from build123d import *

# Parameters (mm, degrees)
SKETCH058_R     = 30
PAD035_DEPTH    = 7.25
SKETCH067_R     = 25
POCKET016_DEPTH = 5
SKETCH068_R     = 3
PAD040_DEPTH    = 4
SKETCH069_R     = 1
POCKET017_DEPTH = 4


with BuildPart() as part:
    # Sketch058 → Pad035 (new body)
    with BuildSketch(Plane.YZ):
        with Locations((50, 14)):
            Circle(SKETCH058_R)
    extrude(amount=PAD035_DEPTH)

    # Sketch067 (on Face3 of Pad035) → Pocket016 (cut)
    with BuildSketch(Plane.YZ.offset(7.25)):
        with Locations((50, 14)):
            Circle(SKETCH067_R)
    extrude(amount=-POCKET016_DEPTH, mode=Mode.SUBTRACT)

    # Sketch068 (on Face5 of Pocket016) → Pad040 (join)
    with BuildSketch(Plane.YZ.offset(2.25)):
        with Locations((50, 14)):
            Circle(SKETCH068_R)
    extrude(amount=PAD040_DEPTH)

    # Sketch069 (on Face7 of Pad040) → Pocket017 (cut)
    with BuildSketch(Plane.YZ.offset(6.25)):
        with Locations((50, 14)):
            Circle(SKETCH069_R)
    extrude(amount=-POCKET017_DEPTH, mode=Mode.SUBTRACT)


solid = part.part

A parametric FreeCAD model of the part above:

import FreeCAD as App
import Part
import Sketcher
from FreeCAD import Vector
Q = App.Units.Quantity

doc = App.newDocument("Part")
params = doc.addObject("Spreadsheet::Sheet", "Params")
for row, (alias, value) in enumerate([
    ("sketch1_diameter", "60 mm"),
    ("pad1_length", "7.25 mm"),
    ("sketch2_diameter", "50 mm"),
    ("pocket1_length", "5 mm"),
    ("sketch3_diameter", "6 mm"),
    ("pad2_length", "4 mm"),
    ("sketch4_diameter", "2 mm"),
    ("pocket2_length", "4 mm"),
], start=1):
    params.set(f"A{row}", alias)
    params.set(f"B{row}", "=" + value)
    params.setAlias(f"B{row}", alias)

body = doc.addObject("PartDesign::Body", "Body")

sketch1 = body.newObject("Sketcher::SketchObject", "Sketch")
sketch1.AttachmentSupport = (doc.getObject("YZ_Plane"), [""])
sketch1.MapMode = "FlatFace"
sketch1.addGeometry(Part.Circle(Vector(50, 14, 0), Vector(0, 0, 1), 30), False)
sketch1.addConstraint([
    Sketcher.Constraint("Diameter", 0, Q("60 mm")),
    Sketcher.Constraint("DistanceX", -1, 1, 0, 3, Q("50 mm")),
    Sketcher.Constraint("DistanceY", -1, 1, 0, 3, Q("14 mm")),
])
sketch1.setExpression("Constraints[0]", "Params.sketch1_diameter")
pad1 = body.newObject("PartDesign::Pad", "Pad")
pad1.Profile = sketch1
pad1.setExpression("Length", "Params.pad1_length")

sketch2 = body.newObject("Sketcher::SketchObject", "Sketch001")
sketch2.AttachmentSupport = (doc.getObject("YZ_Plane"), [""])
sketch2.MapMode = "FlatFace"
sketch2.AttachmentOffset = App.Placement(Vector(0, 0, 7.25), App.Rotation())
sketch2.addGeometry(Part.Circle(Vector(50, 14, 0), Vector(0, 0, 1), 25), False)
sketch2.addConstraint([
    Sketcher.Constraint("Diameter", 0, Q("50 mm")),
    Sketcher.Constraint("DistanceX", -1, 1, 0, 3, Q("50 mm")),
    Sketcher.Constraint("DistanceY", -1, 1, 0, 3, Q("14 mm")),
])
sketch2.setExpression("Constraints[0]", "Params.sketch2_diameter")
pocket1 = body.newObject("PartDesign::Pocket", "Pocket")
pocket1.Profile = sketch2
pocket1.setExpression("Length", "Params.pocket1_length")

sketch3 = body.newObject("Sketcher::SketchObject", "Sketch002")
sketch3.AttachmentSupport = (doc.getObject("YZ_Plane"), [""])
sketch3.MapMode = "FlatFace"
sketch3.AttachmentOffset = App.Placement(Vector(0, 0, 2.25), App.Rotation())
sketch3.addGeometry(Part.Circle(Vector(50, 14, 0), Vector(0, 0, 1), 3), False)
sketch3.addConstraint([
    Sketcher.Constraint("Diameter", 0, Q("6 mm")),
    Sketcher.Constraint("DistanceX", -1, 1, 0, 3, Q("50 mm")),
    Sketcher.Constraint("DistanceY", -1, 1, 0, 3, Q("14 mm")),
])
sketch3.setExpression("Constraints[0]", "Params.sketch3_diameter")
pad2 = body.newObject("PartDesign::Pad", "Pad001")
pad2.Profile = sketch3
pad2.setExpression("Length", "Params.pad2_length")

sketch4 = body.newObject("Sketcher::SketchObject", "Sketch003")
sketch4.AttachmentSupport = (doc.getObject("YZ_Plane"), [""])
sketch4.MapMode = "FlatFace"
sketch4.AttachmentOffset = App.Placement(Vector(0, 0, 6.25), App.Rotation())
sketch4.addGeometry(Part.Circle(Vector(50, 14, 0), Vector(0, 0, 1), 1), False)
sketch4.addConstraint([
    Sketcher.Constraint("Diameter", 0, Q("2 mm")),
    Sketcher.Constraint("DistanceX", -1, 1, 0, 3, Q("50 mm")),
    Sketcher.Constraint("DistanceY", -1, 1, 0, 3, Q("14 mm")),
])
sketch4.setExpression("Constraints[0]", "Params.sketch4_diameter")
pocket2 = body.newObject("PartDesign::Pocket", "Pocket001")
pocket2.Profile = sketch4
pocket2.setExpression("Length", "Params.pocket2_length")

doc.recompute()
